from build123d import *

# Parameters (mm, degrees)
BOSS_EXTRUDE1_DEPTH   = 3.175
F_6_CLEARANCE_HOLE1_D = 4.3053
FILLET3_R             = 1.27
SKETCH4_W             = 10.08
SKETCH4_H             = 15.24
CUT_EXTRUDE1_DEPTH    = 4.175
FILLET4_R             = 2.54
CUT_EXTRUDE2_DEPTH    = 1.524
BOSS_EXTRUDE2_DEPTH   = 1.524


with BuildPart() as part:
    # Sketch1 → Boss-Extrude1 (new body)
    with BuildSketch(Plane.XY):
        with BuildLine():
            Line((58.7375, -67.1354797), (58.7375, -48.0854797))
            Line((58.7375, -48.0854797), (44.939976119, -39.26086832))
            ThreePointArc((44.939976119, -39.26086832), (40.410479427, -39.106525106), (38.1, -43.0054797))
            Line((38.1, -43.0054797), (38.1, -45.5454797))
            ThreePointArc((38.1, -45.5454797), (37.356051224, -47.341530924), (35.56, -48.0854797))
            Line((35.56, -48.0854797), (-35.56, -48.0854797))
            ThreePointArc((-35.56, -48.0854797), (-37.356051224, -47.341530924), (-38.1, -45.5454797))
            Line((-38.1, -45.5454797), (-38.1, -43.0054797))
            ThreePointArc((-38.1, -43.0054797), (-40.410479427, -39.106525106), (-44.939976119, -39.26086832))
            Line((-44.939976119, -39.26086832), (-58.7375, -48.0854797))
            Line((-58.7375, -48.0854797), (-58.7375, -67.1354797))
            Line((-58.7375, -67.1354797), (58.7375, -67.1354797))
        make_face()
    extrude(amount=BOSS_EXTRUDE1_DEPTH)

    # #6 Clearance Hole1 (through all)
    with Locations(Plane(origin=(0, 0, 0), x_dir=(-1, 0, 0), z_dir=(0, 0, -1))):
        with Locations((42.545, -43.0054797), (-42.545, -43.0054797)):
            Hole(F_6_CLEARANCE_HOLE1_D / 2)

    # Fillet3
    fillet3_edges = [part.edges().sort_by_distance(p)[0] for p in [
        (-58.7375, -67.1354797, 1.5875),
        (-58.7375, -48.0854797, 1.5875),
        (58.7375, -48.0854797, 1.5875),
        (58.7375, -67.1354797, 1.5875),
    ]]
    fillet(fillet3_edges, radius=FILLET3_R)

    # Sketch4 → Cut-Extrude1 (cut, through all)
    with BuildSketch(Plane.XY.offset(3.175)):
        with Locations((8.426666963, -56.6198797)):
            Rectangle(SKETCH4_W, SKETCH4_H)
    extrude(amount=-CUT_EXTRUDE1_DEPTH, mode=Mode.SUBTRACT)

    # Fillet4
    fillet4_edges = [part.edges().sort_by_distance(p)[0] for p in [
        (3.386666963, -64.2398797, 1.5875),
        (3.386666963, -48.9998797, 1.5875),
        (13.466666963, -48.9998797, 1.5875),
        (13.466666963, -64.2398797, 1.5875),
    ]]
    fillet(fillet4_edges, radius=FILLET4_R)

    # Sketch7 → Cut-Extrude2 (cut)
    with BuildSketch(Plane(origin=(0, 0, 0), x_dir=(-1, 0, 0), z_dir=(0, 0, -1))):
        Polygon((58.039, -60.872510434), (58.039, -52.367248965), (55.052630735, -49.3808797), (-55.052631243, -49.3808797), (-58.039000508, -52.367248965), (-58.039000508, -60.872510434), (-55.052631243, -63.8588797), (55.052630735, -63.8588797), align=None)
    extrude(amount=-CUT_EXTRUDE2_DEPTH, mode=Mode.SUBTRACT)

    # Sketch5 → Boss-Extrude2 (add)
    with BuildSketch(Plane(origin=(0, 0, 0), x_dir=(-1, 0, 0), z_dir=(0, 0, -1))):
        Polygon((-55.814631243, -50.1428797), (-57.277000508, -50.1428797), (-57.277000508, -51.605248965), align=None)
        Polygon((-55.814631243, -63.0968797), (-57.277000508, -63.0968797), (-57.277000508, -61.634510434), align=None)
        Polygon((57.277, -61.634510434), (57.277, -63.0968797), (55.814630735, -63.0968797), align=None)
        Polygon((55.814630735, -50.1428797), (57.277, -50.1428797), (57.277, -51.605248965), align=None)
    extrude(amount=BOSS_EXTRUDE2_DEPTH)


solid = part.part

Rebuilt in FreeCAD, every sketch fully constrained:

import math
import FreeCAD as App
import Part
import Sketcher

V = App.Vector
Q = App.Units.Quantity


def edges_at(feature, points):
    """Names of the edges that pass closest to the given points."""
    edges = feature.Shape.Edges
    near = lambda p: min(range(len(edges)), key=lambda i: edges[i].distToShape(Part.Vertex(*p))[0])
    return sorted({f"Edge{near(p) + 1}" for p in points})

doc = App.newDocument("Part")
body = doc.addObject("PartDesign::Body", "Body")

sketch1 = doc.addObject("Sketcher::SketchObject", "Sketch")
body.addObject(sketch1)
sketch1.AttachmentSupport = (doc.XY_Plane, [""])
sketch1.MapMode = "FlatFace"
sketch1.addGeometry([
    Part.LineSegment(V(58.7, -67.1, 0), V(58.7, -48.1, 0)),
    Part.LineSegment(V(58.7, -48.1, 0), V(44.9, -39.3, 0)),
    Part.ArcOfCircle(Part.Circle(V(42.5, -43, 0), V(0, 0, 1), 4.4), math.radians(57), math.radians(180)),
    Part.LineSegment(V(38.1, -43, 0), V(38.1, -45.5, 0)),
    Part.ArcOfCircle(Part.Circle(V(35.6, -45.5, 0), V(0, 0, 1), 2.5), math.radians(-90), math.radians(0)),
    Part.LineSegment(V(35.6, -48.1, 0), V(-35.6, -48.1, 0)),
    Part.ArcOfCircle(Part.Circle(V(-35.6, -45.5, 0), V(0, 0, 1), 2.5), math.radians(-180), math.radians(-90)),
    Part.LineSegment(V(-38.1, -45.5, 0), V(-38.1, -43, 0)),
    Part.ArcOfCircle(Part.Circle(V(-42.5, -43, 0), V(0, 0, 1), 4.4), math.radians(0), math.radians(123)),
    Part.LineSegment(V(-44.9, -39.3, 0), V(-58.7, -48.1, 0)),
    Part.LineSegment(V(-58.7, -48.1, 0), V(-58.7, -67.1, 0)),
    Part.LineSegment(V(-58.7, -67.1, 0), V(58.7, -67.1, 0)),
], False)
sketch1.addConstraint([
    Sketcher.Constraint("Coincident", 0, 2, 1, 1),
    Sketcher.Constraint("Tangent", 1, 2, 2, 1),
    Sketcher.Constraint("Tangent", 2, 2, 3, 1),
    Sketcher.Constraint("Tangent", 3, 2, 4, 2),
    Sketcher.Constraint("Tangent", 4, 1, 5, 1),
    Sketcher.Constraint("Tangent", 5, 2, 6, 2),
    Sketcher.Constraint("Tangent", 6, 1, 7, 1),
    Sketcher.Constraint("Tangent", 7, 2, 8, 1),
    Sketcher.Constraint("Tangent", 8, 2, 9, 1),
    Sketcher.Constraint("Coincident", 9, 2, 10, 1),
    Sketcher.Constraint("Coincident", 10, 2, 11, 1),
    Sketcher.Constraint("Coincident", 11, 2, 0, 1),
    Sketcher.Constraint("Vertical", 0),
    Sketcher.Constraint("Vertical", 3),
    Sketcher.Constraint("Horizontal", 5),
    Sketcher.Constraint("Vertical", 7),
    Sketcher.Constraint("Vertical", 10),
    Sketcher.Constraint("Horizontal", 11),
    Sketcher.Constraint("Equal", 4, 6),
    Sketcher.Constraint("Equal", 2, 8),
    Sketcher.Constraint("Symmetric", 2, 3, 8, 3, -2),
    Sketcher.Constraint("Symmetric", 0, 2, 9, 2, -2),
    Sketcher.Constraint("Horizontal", 0, 2, 4, 1),
    Sketcher.Constraint("Radius", 4, Q("0.1 in")),
    Sketcher.Constraint("DistanceX", 5, 2, 5, 1, Q("2.8 in")),
    Sketcher.Constraint("DistanceY", 3, 2, 3, 1, Q("0.1 in")),
    Sketcher.Constraint("Radius", 2, Q("0.175 in")),
    Sketcher.Constraint("DistanceY", 0, 1, 0, 2, Q("0.75 in")),
    Sketcher.Constraint("DistanceX", 11, 1, 11, 2, Q("4.625 in")),
    Sketcher.Constraint("DistanceY", 2, 3, -1, 1, 43.00548),
])
pad1 = doc.addObject("PartDesign::Pad", "Pad")
body.addObject(pad1)
pad1.Profile = sketch1
pad1.Length = Q("0.125 in")

sketch2 = doc.addObject("Sketcher::SketchObject", "Sketch001")
body.addObject(sketch2)
sketch2.AttachmentSupport = (doc.XY_Plane, [""])
sketch2.MapMode = "FlatFace"
sketch2.addGeometry([
    Part.Circle(V(-42.5, -43, 0), V(0, 0, 1), 2.2),
    Part.Circle(V(42.5, -43, 0), V(0, 0, 1), 2.2),
], False)
sketch2.addConstraint([
    Sketcher.Constraint("Equal", 0, 1),
    Sketcher.Constraint("Symmetric", 0, 3, 1, 3, -2),
    Sketcher.Constraint("Diameter", 0, Q("0.1695 in")),
    Sketcher.Constraint("DistanceX", 0, 3, 1, 3, Q("3.35 in")),
    Sketcher.Constraint("DistanceY", 0, 3, -1, 1, 43.00548),
])
doc.recompute()
hole = doc.addObject("PartDesign::Hole", "Hole")
body.addObject(hole)
hole.Profile = sketch2
hole.ThreadType = "None"
hole.Diameter = Q("0.1695 in")
hole.DepthType = "ThroughAll"
hole.Reversed = True
doc.recompute()

fillet = doc.addObject("PartDesign::Fillet", "Fillet")
body.addObject(fillet)
fillet.Base = (hole, edges_at(hole, [
    (-58.737, -67.135, 1.587),
    (-58.737, -48.085, 1.587),
    (58.737, -48.085, 1.587),
    (58.737, -67.135, 1.587),
]))
fillet.Radius = Q("0.05 in")

sketch3 = doc.addObject("Sketcher::SketchObject", "Sketch002")
body.addObject(sketch3)
sketch3.AttachmentSupport = (doc.XY_Plane, [""])
sketch3.MapMode = "FlatFace"
sketch3.AttachmentOffset = App.Placement(V(0, 0, 0.125 * 25.4), App.Rotation())
sketch3.addGeometry([
    Part.LineSegment(V(3, -49, 0), V(3, -64, 0)),
    Part.LineSegment(V(3, -64, 0), V(13, -64, 0)),
    Part.LineSegment(V(13, -64, 0), V(13, -49, 0)),
    Part.LineSegment(V(13, -49, 0), V(3, -49, 0)),
], False)
sketch3.addConstraint([
    Sketcher.Constraint("Coincident", 0, 2, 1, 1),
    Sketcher.Constraint("Coincident", 1, 2, 2, 1),
    Sketcher.Constraint("Coincident", 2, 2, 3, 1),
    Sketcher.Constraint("Coincident", 3, 2, 0, 1),
    Sketcher.Constraint("Vertical", 0),
    Sketcher.Constraint("Horizontal", 1),
    Sketcher.Constraint("Vertical", 2),
    Sketcher.Constraint("Horizontal", 3),
    Sketcher.Constraint("DistanceY", 0, 2, 0, 1, Q("0.6 in")),
    Sketcher.Constraint("DistanceX", 1, 1, 1, 2, 10.08),
    Sketcher.Constraint("DistanceY", 0, 2, -1, 1, 64.23988),
    Sketcher.Constraint("DistanceX", -1, 1, 0, 2, 3.386667),
])
pocket1 = doc.addObject("PartDesign::Pocket", "Pocket")
body.addObject(pocket1)
pocket1.Profile = sketch3
pocket1.Type = "ThroughAll"
doc.recompute()

fillet2 = doc.addObject("PartDesign::Fillet", "Fillet001")
body.addObject(fillet2)
fillet2.Base = (pocket1, edges_at(pocket1, [
    (3.387, -64.24, 1.587),
    (3.387, -49, 1.587),
    (13.467, -49, 1.587),
    (13.467, -64.24, 1.587),
]))
fillet2.Radius = Q("0.1 in")

sketch4 = doc.addObject("Sketcher::SketchObject", "Sketch003")
body.addObject(sketch4)
sketch4.AttachmentSupport = (doc.XY_Plane, [""])
sketch4.MapMode = "FlatFace"
sketch4.addGeometry([
    Part.LineSegment(V(-58, -60.9, 0), V(-58, -52.4, 0)),
    Part.LineSegment(V(-58, -52.4, 0), V(-55.1, -49.4, 0)),
    Part.LineSegment(V(-55.1, -49.4, 0), V(55.1, -49.4, 0)),
    Part.LineSegment(V(55.1, -49.4, 0), V(58, -52.4, 0)),
    Part.LineSegment(V(58, -52.4, 0), V(58, -60.9, 0)),
    Part.LineSegment(V(58, -60.9, 0), V(55.1, -63.9, 0)),
    Part.LineSegment(V(55.1, -63.9, 0), V(-55.1, -63.9, 0)),
    Part.LineSegment(V(-55.1, -63.9, 0), V(-58, -60.9, 0)),
], False)
sketch4.addConstraint([
    Sketcher.Constraint("Coincident", 0, 2, 1, 1),
    Sketcher.Constraint("Coincident", 1, 2, 2, 1),
    Sketcher.Constraint("Coincident", 2, 2, 3, 1),
    Sketcher.Constraint("Coincident", 3, 2, 4, 1),
    Sketcher.Constraint("Coincident", 4, 2, 5, 1),
    Sketcher.Constraint("Coincident", 5, 2, 6, 1),
    Sketcher.Constraint("Coincident", 6, 2, 7, 1),
    Sketcher.Constraint("Coincident", 7, 2, 0, 1),
    Sketcher.Constraint("Vertical", 0),
    Sketcher.Constraint("Horizontal", 2),
    Sketcher.Constraint("Vertical", 4),
    Sketcher.Constraint("Horizontal", 6),
    Sketcher.Constraint("Symmetric", 0, 2, 3, 2, -2),
    Sketcher.Constraint("Perpendicular", 1, 3),
    Sketcher.Constraint("Perpendicular", 3, 5),
    Sketcher.Constraint("Perpendicular", 5, 7),
    Sketcher.Constraint("Horizontal", 4, 2, 7, 2),
    Sketcher.Constraint("Vertical", 2, 2, 5, 2),
    Sketcher.Constraint("Vertical", 1, 2, 6, 2),
    Sketcher.Constraint("DistanceX", 0, 2, 3, 2, Q("4.57 in")),
    Sketcher.Constraint("DistanceY", 5, 2, 2, 2, Q("0.57 in")),
    Sketcher.Constraint("DistanceX", 2, 1, 2, 2, 110.105262),
    Sketcher.Constraint("DistanceY", 0, 2, -1, 1, 52.367249),
])
pocket2 = doc.addObject("PartDesign::Pocket", "Pocket001")
body.addObject(pocket2)
pocket2.Profile = sketch4
pocket2.Length = Q("0.06 in")
pocket2.Reversed = True

sketch5 = doc.addObject("Sketcher::SketchObject", "Sketch004")
body.addObject(sketch5)
sketch5.AttachmentSupport = (doc.XY_Plane, [""])
sketch5.MapMode = "FlatFace"
sketch5.addGeometry([
    Part.LineSegment(V(55.8, -50.1, 0), V(57.3, -50.1, 0)),
    Part.LineSegment(V(57.3, -50.1, 0), V(57.3, -51.6, 0)),
    Part.LineSegment(V(57.3, -51.6, 0), V(55.8, -50.1, 0)),
    Part.LineSegment(V(57.3, -63.1, 0), V(55.8, -63.1, 0)),
    Part.LineSegment(V(55.8, -63.1, 0), V(57.3, -61.6, 0)),
    Part.LineSegment(V(57.3, -61.6, 0), V(57.3, -63.1, 0)),
    Part.LineSegment(V(-57.3, -63.1, 0), V(-57.3, -61.6, 0)),
    Part.LineSegment(V(-57.3, -61.6, 0), V(-55.8, -63.1, 0)),
    Part.LineSegment(V(-55.8, -63.1, 0), V(-57.3, -63.1, 0)),
    Part.LineSegment(V(-57.3, -50.1, 0), V(-55.8, -50.1, 0)),
    Part.LineSegment(V(-55.8, -50.1, 0), V(-57.3, -51.6, 0)),
    Part.LineSegment(V(-57.3, -51.6, 0), V(-57.3, -50.1, 0)),
], False)
sketch5.addConstraint([
    Sketcher.Constraint("Coincident", 0, 2, 1, 1),
    Sketcher.Constraint("Coincident", 1, 2, 2, 1),
    Sketcher.Constraint("Coincident", 2, 2, 0, 1),
    Sketcher.Constraint("Coincident", 3, 2, 4, 1),
    Sketcher.Constraint("Coincident", 4, 2, 5, 1),
    Sketcher.Constraint("Coincident", 5, 2, 3, 1),
    Sketcher.Constraint("Coincident", 6, 2, 7, 1),
    Sketcher.Constraint("Coincident", 7, 2, 8, 1),
    Sketcher.Constraint("Coincident", 8, 2, 6, 1),
    Sketcher.Constraint("Coincident", 9, 2, 10, 1),
    Sketcher.Constraint("Coincident", 10, 2, 11, 1),
    Sketcher.Constraint("Coincident", 11, 2, 9, 1),
    Sketcher.Constraint("Horizontal", 0),
    Sketcher.Constraint("Vertical", 1),
    Sketcher.Constraint("Horizontal", 3),
    Sketcher.Constraint("Vertical", 5),
    Sketcher.Constraint("Vertical", 6),
    Sketcher.Constraint("Horizontal", 8),
    Sketcher.Constraint("Horizontal", 9),
    Sketcher.Constraint("Vertical", 11),
    Sketcher.Constraint("Symmetric", 4, 2, 6, 2, -2),
    Sketcher.Constraint("Symmetric", 3, 2, 7, 2, -2),
    Sketcher.Constraint("Symmetric", 2, 2, 9, 2, -2),
    Sketcher.Constraint("Symmetric", 1, 2, 10, 2, -2),
    Sketcher.Constraint("Perpendicular", 2, 4),
    Sketcher.Constraint("Perpendicular", 4, 7),
    Sketcher.Constraint("Vertical", 2, 2, 3, 2),
    Sketcher.Constraint("Vertical", 1, 2, 4, 2),
    Sketcher.Constraint("DistanceY", 3, 2, 2, 2, Q("0.51 in")),
    Sketcher.Constraint("DistanceX", 6, 2, 4, 2, Q("4.51 in")),
    Sketcher.Constraint("DistanceX", 0, 1, 0, 2, 1.462369),
    Sketcher.Constraint("DistanceY", 0, 2, -1, 1, 50.14288),
])
pad2 = doc.addObject("PartDesign::Pad", "Pad001")
body.addObject(pad2)
pad2.Profile = sketch5
pad2.Length = Q("0.06 in")
pad2.Reversed = True

doc.recompute()
